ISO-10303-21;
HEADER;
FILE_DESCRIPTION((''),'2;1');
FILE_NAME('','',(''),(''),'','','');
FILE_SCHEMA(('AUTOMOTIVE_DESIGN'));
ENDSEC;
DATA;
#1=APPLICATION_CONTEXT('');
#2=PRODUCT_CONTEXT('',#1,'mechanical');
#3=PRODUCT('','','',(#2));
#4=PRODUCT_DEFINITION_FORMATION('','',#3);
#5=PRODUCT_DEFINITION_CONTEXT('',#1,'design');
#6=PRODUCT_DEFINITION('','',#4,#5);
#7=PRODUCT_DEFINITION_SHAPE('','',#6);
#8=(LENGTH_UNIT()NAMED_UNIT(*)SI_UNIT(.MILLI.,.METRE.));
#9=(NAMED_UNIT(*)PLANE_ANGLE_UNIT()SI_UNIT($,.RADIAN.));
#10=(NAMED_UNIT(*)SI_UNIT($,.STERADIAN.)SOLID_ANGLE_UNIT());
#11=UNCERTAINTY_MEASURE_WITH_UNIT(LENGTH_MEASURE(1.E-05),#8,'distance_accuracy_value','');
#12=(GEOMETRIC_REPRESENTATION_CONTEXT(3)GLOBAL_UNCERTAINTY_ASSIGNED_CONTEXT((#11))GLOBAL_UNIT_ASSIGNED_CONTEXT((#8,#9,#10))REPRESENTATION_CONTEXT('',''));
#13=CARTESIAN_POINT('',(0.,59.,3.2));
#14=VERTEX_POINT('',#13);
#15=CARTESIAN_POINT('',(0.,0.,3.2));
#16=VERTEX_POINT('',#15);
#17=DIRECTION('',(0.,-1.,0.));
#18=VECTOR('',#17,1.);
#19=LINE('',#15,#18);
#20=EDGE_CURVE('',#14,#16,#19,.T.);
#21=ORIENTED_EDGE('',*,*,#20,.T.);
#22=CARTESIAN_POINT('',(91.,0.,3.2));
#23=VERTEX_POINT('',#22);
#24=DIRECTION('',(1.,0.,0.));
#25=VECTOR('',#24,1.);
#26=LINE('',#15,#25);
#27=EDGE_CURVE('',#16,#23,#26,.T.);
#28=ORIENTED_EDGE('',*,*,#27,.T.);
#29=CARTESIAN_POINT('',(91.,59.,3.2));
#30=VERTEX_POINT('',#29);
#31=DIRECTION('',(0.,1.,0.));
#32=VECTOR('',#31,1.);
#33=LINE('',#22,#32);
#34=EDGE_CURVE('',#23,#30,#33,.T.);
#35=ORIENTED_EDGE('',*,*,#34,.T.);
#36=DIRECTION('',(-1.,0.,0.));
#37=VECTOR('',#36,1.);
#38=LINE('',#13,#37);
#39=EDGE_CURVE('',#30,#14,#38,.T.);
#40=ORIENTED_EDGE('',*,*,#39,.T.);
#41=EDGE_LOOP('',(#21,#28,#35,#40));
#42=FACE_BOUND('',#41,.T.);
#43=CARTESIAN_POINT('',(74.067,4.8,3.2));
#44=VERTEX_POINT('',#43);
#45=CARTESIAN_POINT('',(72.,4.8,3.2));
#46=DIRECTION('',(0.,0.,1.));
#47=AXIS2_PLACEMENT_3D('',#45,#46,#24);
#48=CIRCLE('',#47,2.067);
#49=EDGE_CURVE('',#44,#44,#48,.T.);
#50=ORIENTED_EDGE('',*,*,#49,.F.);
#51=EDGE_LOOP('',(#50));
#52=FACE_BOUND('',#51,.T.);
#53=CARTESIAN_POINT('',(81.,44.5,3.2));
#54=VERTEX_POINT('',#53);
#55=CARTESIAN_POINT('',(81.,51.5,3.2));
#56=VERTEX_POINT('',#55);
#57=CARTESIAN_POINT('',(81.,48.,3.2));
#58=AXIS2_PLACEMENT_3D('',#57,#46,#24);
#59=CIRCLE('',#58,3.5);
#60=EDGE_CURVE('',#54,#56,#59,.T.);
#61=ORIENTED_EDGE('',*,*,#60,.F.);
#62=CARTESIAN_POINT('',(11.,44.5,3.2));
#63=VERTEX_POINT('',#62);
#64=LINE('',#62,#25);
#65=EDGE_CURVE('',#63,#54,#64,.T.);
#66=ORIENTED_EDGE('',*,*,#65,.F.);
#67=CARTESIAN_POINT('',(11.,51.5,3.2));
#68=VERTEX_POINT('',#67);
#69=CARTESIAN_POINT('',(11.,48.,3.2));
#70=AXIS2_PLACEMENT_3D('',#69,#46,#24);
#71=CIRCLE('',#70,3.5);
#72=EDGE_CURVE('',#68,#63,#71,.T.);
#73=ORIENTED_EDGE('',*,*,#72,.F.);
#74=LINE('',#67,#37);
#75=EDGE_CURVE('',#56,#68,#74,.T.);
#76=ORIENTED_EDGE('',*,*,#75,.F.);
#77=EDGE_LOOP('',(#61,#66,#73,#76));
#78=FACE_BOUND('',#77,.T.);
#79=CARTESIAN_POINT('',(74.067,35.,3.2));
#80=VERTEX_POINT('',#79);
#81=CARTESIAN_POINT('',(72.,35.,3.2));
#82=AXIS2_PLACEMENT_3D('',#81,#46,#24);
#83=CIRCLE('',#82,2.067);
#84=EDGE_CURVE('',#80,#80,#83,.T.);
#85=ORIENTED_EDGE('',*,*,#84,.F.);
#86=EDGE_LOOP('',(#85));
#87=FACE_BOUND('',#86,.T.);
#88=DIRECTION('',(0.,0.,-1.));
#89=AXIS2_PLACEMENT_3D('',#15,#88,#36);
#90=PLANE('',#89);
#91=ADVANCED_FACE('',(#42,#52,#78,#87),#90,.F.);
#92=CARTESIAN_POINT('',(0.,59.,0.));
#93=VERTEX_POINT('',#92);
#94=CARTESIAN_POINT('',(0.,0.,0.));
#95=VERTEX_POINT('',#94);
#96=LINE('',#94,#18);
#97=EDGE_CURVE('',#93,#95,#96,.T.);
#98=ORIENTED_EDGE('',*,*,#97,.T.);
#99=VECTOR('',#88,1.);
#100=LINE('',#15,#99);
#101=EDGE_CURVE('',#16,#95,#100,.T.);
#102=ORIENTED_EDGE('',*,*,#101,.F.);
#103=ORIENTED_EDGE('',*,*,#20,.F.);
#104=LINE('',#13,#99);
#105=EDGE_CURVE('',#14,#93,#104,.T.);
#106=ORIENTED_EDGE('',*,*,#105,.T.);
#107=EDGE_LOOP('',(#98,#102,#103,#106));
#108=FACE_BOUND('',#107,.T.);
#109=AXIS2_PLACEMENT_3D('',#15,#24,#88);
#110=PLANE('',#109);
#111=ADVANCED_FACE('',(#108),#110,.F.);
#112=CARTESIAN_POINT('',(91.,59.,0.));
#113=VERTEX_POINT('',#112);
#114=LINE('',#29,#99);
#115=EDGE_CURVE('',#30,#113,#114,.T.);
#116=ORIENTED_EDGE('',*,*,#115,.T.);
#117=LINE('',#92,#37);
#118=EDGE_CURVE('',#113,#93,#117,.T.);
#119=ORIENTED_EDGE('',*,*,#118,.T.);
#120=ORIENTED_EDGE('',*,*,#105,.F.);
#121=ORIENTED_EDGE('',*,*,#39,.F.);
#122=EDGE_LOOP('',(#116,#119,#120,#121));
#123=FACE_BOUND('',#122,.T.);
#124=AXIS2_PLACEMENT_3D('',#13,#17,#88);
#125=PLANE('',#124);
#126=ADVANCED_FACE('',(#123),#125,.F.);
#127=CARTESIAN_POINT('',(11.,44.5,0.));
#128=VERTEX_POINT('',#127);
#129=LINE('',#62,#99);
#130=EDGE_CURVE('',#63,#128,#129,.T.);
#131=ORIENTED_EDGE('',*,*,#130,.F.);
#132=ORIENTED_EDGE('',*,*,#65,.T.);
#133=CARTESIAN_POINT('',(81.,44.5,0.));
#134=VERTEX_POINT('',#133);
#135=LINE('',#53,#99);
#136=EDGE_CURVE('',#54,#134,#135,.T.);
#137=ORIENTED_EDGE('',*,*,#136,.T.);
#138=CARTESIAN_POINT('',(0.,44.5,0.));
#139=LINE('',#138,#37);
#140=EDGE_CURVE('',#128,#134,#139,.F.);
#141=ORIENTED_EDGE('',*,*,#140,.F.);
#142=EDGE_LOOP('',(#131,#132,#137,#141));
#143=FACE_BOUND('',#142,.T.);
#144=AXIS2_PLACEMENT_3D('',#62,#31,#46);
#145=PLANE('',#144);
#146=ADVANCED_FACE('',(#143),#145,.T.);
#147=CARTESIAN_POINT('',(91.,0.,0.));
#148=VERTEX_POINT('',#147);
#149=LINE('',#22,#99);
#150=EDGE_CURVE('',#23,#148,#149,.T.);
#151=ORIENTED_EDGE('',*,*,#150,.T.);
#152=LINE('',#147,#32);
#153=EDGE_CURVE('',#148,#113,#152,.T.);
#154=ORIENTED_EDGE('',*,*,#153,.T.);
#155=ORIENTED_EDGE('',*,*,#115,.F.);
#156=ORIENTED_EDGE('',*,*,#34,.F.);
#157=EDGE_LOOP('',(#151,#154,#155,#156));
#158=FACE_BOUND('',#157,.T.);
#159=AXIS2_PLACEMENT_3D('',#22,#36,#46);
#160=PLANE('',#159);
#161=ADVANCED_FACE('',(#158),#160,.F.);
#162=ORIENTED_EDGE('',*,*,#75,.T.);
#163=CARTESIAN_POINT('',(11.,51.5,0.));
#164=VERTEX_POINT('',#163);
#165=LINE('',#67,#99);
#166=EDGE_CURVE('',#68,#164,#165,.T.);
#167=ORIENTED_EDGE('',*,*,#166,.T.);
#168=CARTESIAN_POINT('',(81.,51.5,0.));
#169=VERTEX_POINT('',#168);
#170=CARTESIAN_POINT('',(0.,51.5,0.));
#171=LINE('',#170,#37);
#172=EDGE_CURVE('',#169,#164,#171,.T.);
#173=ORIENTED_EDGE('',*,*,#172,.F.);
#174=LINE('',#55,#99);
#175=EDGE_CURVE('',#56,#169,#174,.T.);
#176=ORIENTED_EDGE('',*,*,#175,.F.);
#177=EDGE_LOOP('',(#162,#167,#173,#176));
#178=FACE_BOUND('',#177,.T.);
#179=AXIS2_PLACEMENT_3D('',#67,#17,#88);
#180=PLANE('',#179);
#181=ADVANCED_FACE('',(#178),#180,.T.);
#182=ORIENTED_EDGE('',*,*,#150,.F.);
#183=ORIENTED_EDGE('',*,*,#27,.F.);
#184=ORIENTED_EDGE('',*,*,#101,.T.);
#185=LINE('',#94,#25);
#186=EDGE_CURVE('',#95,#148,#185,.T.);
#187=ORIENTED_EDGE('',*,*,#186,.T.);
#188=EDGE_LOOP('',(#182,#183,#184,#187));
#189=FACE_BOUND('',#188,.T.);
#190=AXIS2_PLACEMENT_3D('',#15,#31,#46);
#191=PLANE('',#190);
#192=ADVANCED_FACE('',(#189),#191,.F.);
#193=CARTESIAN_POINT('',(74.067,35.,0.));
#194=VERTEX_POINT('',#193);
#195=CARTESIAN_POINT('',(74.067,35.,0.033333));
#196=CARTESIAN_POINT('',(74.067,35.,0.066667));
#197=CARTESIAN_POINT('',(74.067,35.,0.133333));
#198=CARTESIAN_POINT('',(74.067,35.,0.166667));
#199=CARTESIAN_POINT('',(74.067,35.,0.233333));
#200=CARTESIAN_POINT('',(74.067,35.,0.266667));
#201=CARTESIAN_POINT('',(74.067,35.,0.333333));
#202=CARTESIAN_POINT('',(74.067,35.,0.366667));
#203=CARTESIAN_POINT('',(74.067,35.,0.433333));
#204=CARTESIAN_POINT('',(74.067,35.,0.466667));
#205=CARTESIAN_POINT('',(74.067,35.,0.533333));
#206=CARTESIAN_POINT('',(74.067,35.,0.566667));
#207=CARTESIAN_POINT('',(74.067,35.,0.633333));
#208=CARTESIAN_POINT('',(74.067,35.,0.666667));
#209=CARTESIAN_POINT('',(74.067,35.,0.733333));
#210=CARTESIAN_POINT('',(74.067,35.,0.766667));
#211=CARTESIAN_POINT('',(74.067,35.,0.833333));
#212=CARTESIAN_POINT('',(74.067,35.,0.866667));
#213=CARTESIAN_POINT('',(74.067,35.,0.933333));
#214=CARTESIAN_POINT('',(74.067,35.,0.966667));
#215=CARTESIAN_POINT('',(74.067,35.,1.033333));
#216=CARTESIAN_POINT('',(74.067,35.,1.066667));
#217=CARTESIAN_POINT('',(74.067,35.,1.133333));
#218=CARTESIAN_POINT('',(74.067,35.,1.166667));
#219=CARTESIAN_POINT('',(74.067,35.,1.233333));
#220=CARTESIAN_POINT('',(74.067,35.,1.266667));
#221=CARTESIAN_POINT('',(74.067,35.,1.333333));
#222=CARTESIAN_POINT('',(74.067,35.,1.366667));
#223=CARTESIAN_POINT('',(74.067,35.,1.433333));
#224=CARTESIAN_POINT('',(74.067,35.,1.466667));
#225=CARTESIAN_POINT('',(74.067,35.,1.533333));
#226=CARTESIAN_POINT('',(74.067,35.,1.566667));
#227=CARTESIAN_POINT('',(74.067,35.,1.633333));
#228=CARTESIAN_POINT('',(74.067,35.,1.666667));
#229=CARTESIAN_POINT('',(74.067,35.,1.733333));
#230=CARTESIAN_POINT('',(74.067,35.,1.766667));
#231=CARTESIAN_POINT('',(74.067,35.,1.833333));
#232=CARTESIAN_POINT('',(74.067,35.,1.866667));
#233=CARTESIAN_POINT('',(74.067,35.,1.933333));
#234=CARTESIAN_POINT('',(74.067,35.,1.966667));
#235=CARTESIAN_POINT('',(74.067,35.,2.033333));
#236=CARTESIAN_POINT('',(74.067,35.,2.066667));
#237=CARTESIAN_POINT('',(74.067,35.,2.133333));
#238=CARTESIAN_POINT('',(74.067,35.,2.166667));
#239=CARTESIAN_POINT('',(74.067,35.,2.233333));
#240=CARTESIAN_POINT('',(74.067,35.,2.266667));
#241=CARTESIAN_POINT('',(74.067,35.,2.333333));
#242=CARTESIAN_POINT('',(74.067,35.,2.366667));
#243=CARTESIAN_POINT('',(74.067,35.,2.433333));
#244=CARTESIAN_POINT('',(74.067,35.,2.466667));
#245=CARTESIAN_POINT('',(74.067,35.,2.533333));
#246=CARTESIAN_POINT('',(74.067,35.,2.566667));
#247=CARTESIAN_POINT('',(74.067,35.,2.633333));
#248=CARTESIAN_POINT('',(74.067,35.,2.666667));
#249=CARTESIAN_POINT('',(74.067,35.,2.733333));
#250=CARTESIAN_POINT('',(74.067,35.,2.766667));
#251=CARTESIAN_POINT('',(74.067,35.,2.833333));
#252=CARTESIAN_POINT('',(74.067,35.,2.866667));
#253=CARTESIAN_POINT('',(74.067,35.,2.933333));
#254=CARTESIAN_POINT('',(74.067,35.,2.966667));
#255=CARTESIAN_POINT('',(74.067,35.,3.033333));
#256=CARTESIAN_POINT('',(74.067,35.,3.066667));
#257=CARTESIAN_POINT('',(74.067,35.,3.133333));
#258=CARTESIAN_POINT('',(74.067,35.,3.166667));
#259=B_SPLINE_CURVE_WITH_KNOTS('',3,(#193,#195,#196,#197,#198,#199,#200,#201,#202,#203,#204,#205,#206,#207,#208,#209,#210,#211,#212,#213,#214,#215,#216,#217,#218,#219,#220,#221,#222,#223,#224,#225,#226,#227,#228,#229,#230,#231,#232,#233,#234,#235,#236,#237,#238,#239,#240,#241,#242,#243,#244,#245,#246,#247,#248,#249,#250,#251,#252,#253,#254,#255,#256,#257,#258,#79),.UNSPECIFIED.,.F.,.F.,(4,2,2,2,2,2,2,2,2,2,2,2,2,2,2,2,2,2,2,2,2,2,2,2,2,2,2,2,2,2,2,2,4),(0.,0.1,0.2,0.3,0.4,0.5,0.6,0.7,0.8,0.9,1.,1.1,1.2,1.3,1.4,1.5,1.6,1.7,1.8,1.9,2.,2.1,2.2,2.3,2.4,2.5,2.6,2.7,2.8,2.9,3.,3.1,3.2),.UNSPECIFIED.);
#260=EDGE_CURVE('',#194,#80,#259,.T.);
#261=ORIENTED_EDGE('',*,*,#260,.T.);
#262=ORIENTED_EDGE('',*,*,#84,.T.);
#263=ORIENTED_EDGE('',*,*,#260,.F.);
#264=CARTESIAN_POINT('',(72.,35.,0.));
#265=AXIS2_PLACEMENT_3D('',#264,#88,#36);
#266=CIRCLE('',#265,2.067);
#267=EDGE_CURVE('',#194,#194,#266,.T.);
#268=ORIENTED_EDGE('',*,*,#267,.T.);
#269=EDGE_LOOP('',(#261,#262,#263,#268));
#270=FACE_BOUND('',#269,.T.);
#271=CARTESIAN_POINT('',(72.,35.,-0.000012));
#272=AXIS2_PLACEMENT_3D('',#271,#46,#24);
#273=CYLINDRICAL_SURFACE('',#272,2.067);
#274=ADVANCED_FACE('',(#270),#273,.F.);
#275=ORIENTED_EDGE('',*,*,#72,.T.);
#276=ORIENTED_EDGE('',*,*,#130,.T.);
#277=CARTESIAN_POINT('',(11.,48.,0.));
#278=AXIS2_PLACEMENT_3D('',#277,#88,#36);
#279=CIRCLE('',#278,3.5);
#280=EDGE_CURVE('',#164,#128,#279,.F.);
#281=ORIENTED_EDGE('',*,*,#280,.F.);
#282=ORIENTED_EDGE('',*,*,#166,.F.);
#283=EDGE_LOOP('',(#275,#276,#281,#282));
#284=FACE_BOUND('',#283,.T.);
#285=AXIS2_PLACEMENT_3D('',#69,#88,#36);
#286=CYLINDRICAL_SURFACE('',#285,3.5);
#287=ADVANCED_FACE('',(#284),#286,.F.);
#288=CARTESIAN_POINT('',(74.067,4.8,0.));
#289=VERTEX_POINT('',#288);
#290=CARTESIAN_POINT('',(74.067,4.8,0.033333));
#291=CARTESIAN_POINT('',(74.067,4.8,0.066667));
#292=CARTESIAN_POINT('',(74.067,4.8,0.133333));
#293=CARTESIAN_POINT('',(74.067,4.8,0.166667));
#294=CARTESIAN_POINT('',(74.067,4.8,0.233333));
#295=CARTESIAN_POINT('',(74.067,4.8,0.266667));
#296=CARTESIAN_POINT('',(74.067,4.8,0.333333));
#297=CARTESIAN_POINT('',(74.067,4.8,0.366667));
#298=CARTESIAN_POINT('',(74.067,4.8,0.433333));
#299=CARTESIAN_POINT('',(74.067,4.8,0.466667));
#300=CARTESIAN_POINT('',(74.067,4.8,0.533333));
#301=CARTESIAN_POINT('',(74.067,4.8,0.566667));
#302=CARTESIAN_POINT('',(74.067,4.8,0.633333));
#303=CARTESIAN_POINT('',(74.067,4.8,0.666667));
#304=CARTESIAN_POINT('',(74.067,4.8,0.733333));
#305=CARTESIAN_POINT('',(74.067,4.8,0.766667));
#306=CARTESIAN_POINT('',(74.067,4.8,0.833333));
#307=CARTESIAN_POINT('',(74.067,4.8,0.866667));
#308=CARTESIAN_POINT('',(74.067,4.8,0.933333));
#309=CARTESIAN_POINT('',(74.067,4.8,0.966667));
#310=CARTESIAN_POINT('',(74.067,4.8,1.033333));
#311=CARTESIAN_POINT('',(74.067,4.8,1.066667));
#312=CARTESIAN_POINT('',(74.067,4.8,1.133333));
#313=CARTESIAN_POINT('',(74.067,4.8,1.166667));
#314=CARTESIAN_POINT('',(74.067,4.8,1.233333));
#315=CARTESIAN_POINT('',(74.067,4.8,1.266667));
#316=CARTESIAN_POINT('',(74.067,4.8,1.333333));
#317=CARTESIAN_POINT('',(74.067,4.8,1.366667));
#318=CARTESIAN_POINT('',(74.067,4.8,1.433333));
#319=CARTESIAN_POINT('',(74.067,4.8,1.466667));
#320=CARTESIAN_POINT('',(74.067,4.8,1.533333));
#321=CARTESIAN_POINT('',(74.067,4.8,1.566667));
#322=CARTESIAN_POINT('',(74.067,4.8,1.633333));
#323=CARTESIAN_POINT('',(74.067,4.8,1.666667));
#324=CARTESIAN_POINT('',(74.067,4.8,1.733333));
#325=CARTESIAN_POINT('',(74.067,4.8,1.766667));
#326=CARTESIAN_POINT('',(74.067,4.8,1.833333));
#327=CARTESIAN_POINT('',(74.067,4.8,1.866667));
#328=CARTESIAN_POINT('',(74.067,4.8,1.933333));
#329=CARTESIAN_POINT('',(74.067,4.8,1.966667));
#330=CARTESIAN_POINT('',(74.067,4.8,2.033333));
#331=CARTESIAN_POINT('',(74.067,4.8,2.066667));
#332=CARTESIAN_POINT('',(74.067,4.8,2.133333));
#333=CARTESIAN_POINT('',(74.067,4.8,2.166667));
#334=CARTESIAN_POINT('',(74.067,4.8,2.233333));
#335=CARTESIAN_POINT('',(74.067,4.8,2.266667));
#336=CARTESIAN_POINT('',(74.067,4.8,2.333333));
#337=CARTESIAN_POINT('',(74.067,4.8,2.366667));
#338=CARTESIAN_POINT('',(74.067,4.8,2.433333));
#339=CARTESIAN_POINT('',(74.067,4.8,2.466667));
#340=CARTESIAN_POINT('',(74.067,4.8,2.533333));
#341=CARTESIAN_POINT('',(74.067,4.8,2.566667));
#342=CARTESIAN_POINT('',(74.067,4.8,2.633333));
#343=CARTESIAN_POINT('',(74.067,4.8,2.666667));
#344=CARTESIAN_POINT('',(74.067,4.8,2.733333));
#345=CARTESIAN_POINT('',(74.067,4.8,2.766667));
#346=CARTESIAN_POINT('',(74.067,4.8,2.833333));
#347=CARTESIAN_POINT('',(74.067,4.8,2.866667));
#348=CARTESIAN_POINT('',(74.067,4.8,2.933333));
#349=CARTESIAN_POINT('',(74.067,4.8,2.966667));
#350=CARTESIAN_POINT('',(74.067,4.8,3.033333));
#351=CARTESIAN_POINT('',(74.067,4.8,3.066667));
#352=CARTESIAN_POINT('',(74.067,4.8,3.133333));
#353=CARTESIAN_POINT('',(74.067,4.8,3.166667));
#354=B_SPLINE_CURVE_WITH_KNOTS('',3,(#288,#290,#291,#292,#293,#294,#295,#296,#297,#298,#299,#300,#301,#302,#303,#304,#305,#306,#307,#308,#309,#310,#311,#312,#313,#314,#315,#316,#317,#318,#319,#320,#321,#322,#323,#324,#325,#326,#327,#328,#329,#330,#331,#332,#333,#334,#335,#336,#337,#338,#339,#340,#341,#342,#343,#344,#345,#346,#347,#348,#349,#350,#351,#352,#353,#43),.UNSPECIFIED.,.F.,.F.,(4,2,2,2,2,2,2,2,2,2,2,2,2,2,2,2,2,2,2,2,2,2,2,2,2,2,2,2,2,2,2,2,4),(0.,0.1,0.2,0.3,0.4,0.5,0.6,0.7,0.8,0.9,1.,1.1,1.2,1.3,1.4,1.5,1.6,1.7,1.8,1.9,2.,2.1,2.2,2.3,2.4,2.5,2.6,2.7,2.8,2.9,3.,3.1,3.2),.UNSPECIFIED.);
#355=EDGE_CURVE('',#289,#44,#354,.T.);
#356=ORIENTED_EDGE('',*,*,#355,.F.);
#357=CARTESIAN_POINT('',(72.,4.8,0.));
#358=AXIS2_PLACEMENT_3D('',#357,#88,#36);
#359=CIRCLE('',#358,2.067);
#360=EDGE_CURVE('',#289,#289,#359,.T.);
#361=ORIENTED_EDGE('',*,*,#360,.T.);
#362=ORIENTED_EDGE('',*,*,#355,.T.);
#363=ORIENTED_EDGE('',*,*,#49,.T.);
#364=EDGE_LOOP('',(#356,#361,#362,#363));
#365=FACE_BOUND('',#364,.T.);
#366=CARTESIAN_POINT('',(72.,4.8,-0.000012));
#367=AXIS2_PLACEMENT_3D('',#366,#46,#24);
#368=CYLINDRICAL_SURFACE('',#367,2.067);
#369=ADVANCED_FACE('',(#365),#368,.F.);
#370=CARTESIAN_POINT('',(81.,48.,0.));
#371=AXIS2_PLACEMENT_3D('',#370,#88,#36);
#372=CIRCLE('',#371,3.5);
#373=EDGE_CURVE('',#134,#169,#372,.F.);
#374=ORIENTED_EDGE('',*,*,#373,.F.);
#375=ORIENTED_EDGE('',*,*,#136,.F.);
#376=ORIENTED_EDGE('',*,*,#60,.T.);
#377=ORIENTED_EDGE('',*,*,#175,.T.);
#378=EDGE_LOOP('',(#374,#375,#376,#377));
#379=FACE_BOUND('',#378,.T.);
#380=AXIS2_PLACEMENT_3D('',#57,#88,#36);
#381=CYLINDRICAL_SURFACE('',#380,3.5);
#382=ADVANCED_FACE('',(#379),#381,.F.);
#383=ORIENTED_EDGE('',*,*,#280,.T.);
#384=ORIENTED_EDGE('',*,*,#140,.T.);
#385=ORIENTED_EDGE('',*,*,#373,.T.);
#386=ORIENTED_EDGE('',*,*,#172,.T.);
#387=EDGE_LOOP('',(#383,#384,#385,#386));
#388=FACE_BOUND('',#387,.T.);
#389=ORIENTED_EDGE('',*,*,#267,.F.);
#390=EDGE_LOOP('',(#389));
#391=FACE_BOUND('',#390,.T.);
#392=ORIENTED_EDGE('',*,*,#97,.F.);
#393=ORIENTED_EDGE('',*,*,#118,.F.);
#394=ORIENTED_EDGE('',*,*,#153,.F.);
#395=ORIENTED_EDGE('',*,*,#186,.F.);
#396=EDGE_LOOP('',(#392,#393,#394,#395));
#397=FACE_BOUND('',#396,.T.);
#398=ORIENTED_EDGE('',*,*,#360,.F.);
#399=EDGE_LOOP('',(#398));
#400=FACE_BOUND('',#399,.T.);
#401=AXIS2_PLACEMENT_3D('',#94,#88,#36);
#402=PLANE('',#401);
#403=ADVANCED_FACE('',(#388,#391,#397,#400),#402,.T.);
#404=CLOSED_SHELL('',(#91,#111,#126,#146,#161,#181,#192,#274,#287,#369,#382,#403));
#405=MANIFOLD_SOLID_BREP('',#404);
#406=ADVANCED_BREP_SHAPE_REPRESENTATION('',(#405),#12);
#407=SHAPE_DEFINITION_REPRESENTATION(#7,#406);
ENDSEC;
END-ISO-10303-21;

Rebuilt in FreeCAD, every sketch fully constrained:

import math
import FreeCAD as App
import Part
import Sketcher

V = App.Vector


def add_polygon(sketch, points):
    """Adds a closed chain of lines whose ends are joined by coincident constraints."""
    first, n = sketch.GeometryCount, len(points)
    for a, b in zip(points, points[1:] + points[:1]):
        sketch.addGeometry(Part.LineSegment(App.Vector(*a, 0), App.Vector(*b, 0)), False)
    for i in range(n):
        sketch.addConstraint(Sketcher.Constraint("Coincident", first + i, 2, first + (i + 1) % n, 1))

doc = App.newDocument("Part")
params = doc.addObject("Spreadsheet::Sheet", "Params")
for row, (alias, value) in enumerate([
    ("sketch1_width", "91 mm"),
    ("sketch1_height", "59 mm"),
    ("pad1_length", "3.2 mm"),
    ("sketch2_radius", "3.5 mm"),
    ("sketch2_width", "70 mm"),
], start=1):
    params.set(f"A{row}", alias)
    params.set(f"B{row}", "=" + value)
    params.setAlias(f"B{row}", alias)

body = doc.addObject("PartDesign::Body", "Body")

sketch1 = body.newObject("Sketcher::SketchObject", "Sketch")
sketch1.AttachmentSupport = (doc.getObject("XY_Plane"), [""])
sketch1.MapMode = "FlatFace"
add_polygon(sketch1, [(0, 59), (0, 0), (91, 0), (91, 59)])
sketch1.addConstraint(Sketcher.Constraint("Vertical", 0))
sketch1.addConstraint(Sketcher.Constraint("Horizontal", 1))
sketch1.addConstraint(Sketcher.Constraint("Vertical", 2))
sketch1.addConstraint(Sketcher.Constraint("Horizontal", 3))
sketch1.addConstraint(Sketcher.Constraint("Coincident", 0, 2, -1, 1))
sketch1.addConstraint(Sketcher.Constraint("DistanceX", 1, 1, 1, 2, 91.0))
sketch1.addConstraint(Sketcher.Constraint("DistanceY", 0, 2, 0, 1, 59.0))
sketch1.setExpression("Constraints[9]", "Params.sketch1_width")
sketch1.setExpression("Constraints[10]", "Params.sketch1_height")
pad1 = body.newObject("PartDesign::Pad", "Pad")
pad1.Profile = sketch1
pad1.setExpression("Length", "Params.pad1_length")

sketch2 = body.newObject("Sketcher::SketchObject", "Sketch001")
sketch2.AttachmentSupport = (doc.getObject("XY_Plane"), [""])
sketch2.MapMode = "FlatFace"
sketch2.addGeometry(Part.LineSegment(V(81, 51.5, 0), V(11, 51.5, 0)), False)
sketch2.addGeometry(Part.ArcOfCircle(Part.Circle(V(11, 48, 0), V(0, 0, 1), 3.5), math.radians(90), math.radians(270)), False)
sketch2.addGeometry(Part.LineSegment(V(11, 44.5, 0), V(81, 44.5, 0)), False)
sketch2.addGeometry(Part.ArcOfCircle(Part.Circle(V(81, 48, 0), V(0, 0, 1), 3.5), math.radians(-90), math.radians(90)), False)
sketch2.addConstraint(Sketcher.Constraint("Tangent", 0, 2, 1, 1))
sketch2.addConstraint(Sketcher.Constraint("Tangent", 1, 2, 2, 1))
sketch2.addConstraint(Sketcher.Constraint("Tangent", 2, 2, 3, 1))
sketch2.addConstraint(Sketcher.Constraint("Tangent", 3, 2, 0, 1))
sketch2.addConstraint(Sketcher.Constraint("Horizontal", 0))
sketch2.addConstraint(Sketcher.Constraint("Horizontal", 2))
sketch2.addConstraint(Sketcher.Constraint("Radius", 1, 3.5))
sketch2.addConstraint(Sketcher.Constraint("DistanceX", 0, 2, 0, 1, 70.0))
sketch2.addConstraint(Sketcher.Constraint("DistanceX", -1, 1, 1, 3, 11.0))
sketch2.addConstraint(Sketcher.Constraint("DistanceY", -1, 1, 1, 3, 48.0))
sketch2.setExpression("Constraints[6]", "Params.sketch2_radius")
sketch2.setExpression("Constraints[7]", "Params.sketch2_width")
pocket1 = body.newObject("PartDesign::Pocket", "Pocket")
pocket1.Profile = sketch2
pocket1.Type = "ThroughAll"
pocket1.Midplane = True

sketch3 = body.newObject("Sketcher::SketchObject", "Sketch002")
sketch3.AttachmentSupport = (doc.getObject("XY_Plane"), [""])
sketch3.MapMode = "FlatFace"
sketch3.addGeometry(Part.Circle(V(72, 35, 0), V(0, 0, 1), 2.067), False)
sketch3.addGeometry(Part.Circle(V(72, 4.8, 0), V(0, 0, 1), 2.067), False)
sketch3.addConstraint(Sketcher.Constraint("Equal", 0, 1))
sketch3.addConstraint(Sketcher.Constraint("Vertical", 0, 3, 1, 3))
sketch3.addConstraint(Sketcher.Constraint("Diameter", 0, 4.134))
sketch3.addConstraint(Sketcher.Constraint("DistanceX", -1, 1, 0, 3, 72.0))
sketch3.addConstraint(Sketcher.Constraint("DistanceY", -1, 1, 0, 3, 35.0))
sketch3.addConstraint(Sketcher.Constraint("DistanceY", -1, 1, 1, 3, 4.8))
pocket2 = body.newObject("PartDesign::Pocket", "Pocket001")
pocket2.Profile = sketch3
pocket2.Type = "ThroughAll"
pocket2.Midplane = True

doc.recompute()
